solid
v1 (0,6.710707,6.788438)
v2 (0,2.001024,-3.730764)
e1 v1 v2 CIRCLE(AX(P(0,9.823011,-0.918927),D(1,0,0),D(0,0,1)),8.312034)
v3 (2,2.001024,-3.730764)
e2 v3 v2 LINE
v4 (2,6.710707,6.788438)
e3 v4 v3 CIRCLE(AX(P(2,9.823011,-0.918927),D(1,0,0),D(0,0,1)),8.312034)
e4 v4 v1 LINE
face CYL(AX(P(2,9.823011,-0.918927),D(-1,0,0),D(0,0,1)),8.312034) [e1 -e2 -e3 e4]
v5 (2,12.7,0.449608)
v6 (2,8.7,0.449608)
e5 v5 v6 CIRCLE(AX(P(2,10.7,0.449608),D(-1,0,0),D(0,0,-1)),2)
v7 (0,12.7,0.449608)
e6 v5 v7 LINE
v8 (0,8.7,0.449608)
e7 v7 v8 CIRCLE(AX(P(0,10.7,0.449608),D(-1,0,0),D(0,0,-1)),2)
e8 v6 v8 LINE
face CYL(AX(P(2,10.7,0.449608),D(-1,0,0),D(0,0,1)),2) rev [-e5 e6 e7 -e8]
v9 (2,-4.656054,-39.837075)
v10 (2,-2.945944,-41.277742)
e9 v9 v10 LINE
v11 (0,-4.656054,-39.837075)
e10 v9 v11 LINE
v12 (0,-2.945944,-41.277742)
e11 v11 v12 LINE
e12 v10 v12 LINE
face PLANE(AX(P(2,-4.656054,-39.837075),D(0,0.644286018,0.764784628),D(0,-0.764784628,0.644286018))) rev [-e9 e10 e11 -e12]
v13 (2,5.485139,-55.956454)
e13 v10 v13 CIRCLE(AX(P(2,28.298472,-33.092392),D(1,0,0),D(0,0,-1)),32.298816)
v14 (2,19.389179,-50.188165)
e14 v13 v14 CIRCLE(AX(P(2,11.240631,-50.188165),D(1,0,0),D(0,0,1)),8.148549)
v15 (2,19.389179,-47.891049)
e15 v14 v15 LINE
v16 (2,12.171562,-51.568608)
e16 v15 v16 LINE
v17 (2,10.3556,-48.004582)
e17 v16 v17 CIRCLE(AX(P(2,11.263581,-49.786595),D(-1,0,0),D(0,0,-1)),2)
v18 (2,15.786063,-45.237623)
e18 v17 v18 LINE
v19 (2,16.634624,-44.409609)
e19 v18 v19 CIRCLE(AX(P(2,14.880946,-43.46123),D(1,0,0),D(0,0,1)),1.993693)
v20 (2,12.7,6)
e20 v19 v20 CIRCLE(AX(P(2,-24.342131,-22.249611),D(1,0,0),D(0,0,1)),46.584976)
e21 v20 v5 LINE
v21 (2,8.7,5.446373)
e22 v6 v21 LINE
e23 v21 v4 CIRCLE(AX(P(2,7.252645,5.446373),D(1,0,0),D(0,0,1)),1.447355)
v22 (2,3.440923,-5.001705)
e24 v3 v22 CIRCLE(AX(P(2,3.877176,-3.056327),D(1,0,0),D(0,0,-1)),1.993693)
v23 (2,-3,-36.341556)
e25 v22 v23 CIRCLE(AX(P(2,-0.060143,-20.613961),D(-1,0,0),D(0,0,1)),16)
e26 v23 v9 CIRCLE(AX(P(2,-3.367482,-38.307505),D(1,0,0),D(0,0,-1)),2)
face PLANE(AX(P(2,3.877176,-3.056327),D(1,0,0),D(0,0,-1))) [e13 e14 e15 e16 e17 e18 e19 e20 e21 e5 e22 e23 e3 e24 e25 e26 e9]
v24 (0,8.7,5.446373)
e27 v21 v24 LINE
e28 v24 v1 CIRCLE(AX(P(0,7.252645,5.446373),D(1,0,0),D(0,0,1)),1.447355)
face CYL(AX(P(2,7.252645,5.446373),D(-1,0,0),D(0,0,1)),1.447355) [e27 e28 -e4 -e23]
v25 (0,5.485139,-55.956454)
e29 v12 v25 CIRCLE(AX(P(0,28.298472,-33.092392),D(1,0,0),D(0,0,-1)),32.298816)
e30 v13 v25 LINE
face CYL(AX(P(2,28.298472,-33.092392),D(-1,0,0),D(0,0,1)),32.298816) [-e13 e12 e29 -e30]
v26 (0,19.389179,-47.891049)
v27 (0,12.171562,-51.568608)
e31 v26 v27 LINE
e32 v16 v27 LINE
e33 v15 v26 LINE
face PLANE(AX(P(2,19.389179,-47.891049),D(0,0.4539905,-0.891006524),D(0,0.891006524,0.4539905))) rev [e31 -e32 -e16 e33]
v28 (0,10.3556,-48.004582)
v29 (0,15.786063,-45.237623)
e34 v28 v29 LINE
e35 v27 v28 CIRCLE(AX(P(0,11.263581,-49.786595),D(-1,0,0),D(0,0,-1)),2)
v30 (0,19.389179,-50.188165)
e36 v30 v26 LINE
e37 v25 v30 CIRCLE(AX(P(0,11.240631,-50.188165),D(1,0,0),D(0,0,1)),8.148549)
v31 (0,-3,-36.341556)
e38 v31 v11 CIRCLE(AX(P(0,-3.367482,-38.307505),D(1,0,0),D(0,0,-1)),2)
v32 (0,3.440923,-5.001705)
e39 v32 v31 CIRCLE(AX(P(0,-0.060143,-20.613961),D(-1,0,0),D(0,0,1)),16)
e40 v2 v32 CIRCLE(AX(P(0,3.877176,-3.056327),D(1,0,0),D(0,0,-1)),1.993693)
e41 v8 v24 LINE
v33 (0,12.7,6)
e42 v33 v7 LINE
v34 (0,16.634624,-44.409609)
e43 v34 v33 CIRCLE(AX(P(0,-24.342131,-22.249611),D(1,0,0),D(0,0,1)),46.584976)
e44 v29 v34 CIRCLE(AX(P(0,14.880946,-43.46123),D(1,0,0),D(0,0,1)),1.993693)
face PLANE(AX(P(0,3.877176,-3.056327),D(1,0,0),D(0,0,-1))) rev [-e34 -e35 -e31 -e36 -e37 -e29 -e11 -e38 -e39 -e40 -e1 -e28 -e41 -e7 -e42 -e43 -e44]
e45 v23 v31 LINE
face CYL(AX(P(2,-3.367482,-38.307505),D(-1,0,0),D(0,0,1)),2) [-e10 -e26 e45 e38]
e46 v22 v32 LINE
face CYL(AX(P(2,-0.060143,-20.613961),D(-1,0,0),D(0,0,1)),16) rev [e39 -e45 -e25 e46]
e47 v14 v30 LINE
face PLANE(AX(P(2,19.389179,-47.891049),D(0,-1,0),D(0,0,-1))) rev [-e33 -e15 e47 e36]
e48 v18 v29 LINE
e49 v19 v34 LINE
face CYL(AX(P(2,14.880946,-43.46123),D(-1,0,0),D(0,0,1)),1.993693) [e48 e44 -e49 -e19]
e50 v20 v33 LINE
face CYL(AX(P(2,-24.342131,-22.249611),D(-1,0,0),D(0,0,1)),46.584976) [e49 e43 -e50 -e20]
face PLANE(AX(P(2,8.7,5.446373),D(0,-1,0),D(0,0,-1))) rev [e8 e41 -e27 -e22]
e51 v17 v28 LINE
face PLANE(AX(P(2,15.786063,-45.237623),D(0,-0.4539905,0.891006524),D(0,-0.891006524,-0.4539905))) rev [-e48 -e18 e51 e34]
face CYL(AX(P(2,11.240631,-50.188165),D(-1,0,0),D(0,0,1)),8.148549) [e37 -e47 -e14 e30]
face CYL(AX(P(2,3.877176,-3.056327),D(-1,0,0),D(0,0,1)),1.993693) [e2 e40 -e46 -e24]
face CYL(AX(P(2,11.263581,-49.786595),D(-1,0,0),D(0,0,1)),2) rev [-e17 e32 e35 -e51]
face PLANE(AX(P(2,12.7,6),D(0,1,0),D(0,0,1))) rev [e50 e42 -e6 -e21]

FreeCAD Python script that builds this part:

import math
import FreeCAD as App
import Part
import Sketcher
Q = App.Units.Quantity

doc = App.newDocument("Part")
body = doc.addObject("PartDesign::Body", "Body")

sketch1 = body.newObject("Sketcher::SketchObject", "Sketch")
sketch1.AttachmentSupport = (doc.getObject("YZ_Plane"), [""])
sketch1.MapMode = "FlatFace"
sketch1.addGeometry([
    Part.LineSegment(App.Vector(19.4, -47.9, 0), App.Vector(12.2, -51.6, 0)),
    Part.ArcOfCircle(Part.Circle(App.Vector(11.3, -49.8, 0), App.Vector(0, 0, 1), 2), math.radians(117), math.radians(297)),
    Part.LineSegment(App.Vector(10.4, -48, 0), App.Vector(15.8, -45.2, 0)),
    Part.ArcOfCircle(Part.Circle(App.Vector(14.9, -43.5, 0), App.Vector(0, 0, 1), 2), math.radians(-63), math.radians(-28)),
    Part.ArcOfCircle(Part.Circle(App.Vector(-24.3, -22.2, 0), App.Vector(0, 0, 1), 46.6), math.radians(-28), math.radians(37)),
    Part.LineSegment(App.Vector(12.7, 6, 0), App.Vector(12.7, 0.4, 0)),
    Part.ArcOfCircle(Part.Circle(App.Vector(10.7, 0.4, 0), App.Vector(0, 0, 1), 2), math.radians(180), math.radians(360)),
    Part.LineSegment(App.Vector(8.7, 0.4, 0), App.Vector(8.7, 5.4, 0)),
    Part.ArcOfCircle(Part.Circle(App.Vector(7.3, 5.4, 0), App.Vector(0, 0, 1), 1.4), math.radians(0), math.radians(112)),
    Part.ArcOfCircle(Part.Circle(App.Vector(9.8, -0.9, 0), App.Vector(0, 0, 1), 8.3), math.radians(112), math.radians(200)),
    Part.ArcOfCircle(Part.Circle(App.Vector(3.9, -3.1, 0), App.Vector(0, 0, 1), 2), math.radians(-160), math.radians(-103)),
    Part.ArcOfCircle(Part.Circle(App.Vector(-0.1, -20.6, 0), App.Vector(0, 0, 1), 16), math.radians(-101), math.radians(77)),
    Part.ArcOfCircle(Part.Circle(App.Vector(-3.4, -38.3, 0), App.Vector(0, 0, 1), 2), math.radians(79), math.radians(230)),
    Part.LineSegment(App.Vector(-4.7, -39.8, 0), App.Vector(-2.9, -41.3, 0)),
    Part.ArcOfCircle(Part.Circle(App.Vector(28.3, -33.1, 0), App.Vector(0, 0, 1), 32.3), math.radians(-165), math.radians(-135)),
    Part.ArcOfCircle(Part.Circle(App.Vector(11.2, -50.2, 0), App.Vector(0, 0, 1), 8.1), math.radians(-135), math.radians(0)),
    Part.LineSegment(App.Vector(19.4, -50.2, 0), App.Vector(19.4, -47.9, 0)),
], False)
sketch1.addConstraint([
    Sketcher.Constraint("Tangent", 0, 2, 1, 2),
    Sketcher.Constraint("Tangent", 1, 1, 2, 1),
    Sketcher.Constraint("Tangent", 2, 2, 3, 1),
    Sketcher.Constraint("Tangent", 3, 2, 4, 1),
    Sketcher.Constraint("Coincident", 4, 2, 5, 1),
    Sketcher.Constraint("Tangent", 5, 2, 6, 2),
    Sketcher.Constraint("Tangent", 6, 1, 7, 1),
    Sketcher.Constraint("Tangent", 7, 2, 8, 1),
    Sketcher.Constraint("Tangent", 8, 2, 9, 1),
    Sketcher.Constraint("Tangent", 9, 2, 10, 1),
    Sketcher.Constraint("Tangent", 10, 2, 11, 2),
    Sketcher.Constraint("Tangent", 11, 1, 12, 1),
    Sketcher.Constraint("Tangent", 12, 2, 13, 1),
    Sketcher.Constraint("Coincident", 13, 2, 14, 1),
    Sketcher.Constraint("Tangent", 14, 2, 15, 1),
    Sketcher.Constraint("Tangent", 15, 2, 16, 1),
    Sketcher.Constraint("Coincident", 16, 2, 0, 1),
    Sketcher.Constraint("Vertical", 5),
    Sketcher.Constraint("Vertical", 7),
    Sketcher.Constraint("Vertical", 16),
    Sketcher.Constraint("Equal", 1, 6),
    Sketcher.Constraint("Equal", 3, 10),
    Sketcher.Constraint("Equal", 6, 12),
    Sketcher.Constraint("Parallel", 0, 2),
    Sketcher.Constraint("Radius", 1, 2.0),
    Sketcher.Constraint("Radius", 11, 16.0),
    Sketcher.Constraint("Angle", 0, Q("-153 deg")),
    Sketcher.Constraint("DistanceY", -1, 1, 4, 2, 6.0),
    Sketcher.Constraint("DistanceX", 11, 1, -1, 1, 3.0),
    Sketcher.Constraint("DistanceX", -1, 1, 6, 3, 10.7),
    Sketcher.Constraint("Radius", 15, 8.148549),
    Sketcher.Constraint("Radius", 3, 1.993693),
    Sketcher.Constraint("Radius", 4, 46.584976),
    Sketcher.Constraint("Radius", 8, 1.447355),
    Sketcher.Constraint("Radius", 9, 8.312034),
    Sketcher.Constraint("Radius", 14, 32.298816),
    Sketcher.Constraint("DistanceY", 5, 2, 5, 1, 5.550392),
    Sketcher.Constraint("DistanceX", -1, 1, 1, 1, 10.3556),
    Sketcher.Constraint("DistanceX", 8, 3, 3, 3, 7.6283),
    Sketcher.Constraint("DistanceY", 9, 3, 8, 3, 6.3653),
    Sketcher.Constraint("DistanceY", 10, 3, 9, 3, 2.1374),
    Sketcher.Constraint("DistanceX", 9, 2, 10, 2, 1.439899),
    Sketcher.Constraint("Distance", 0, 8.100521),
    Sketcher.Constraint("DistanceY", 7, 1, 7, 2, 4.996765),
    Sketcher.Constraint("DistanceY", 16, 1, 16, 2, 2.297116),
    Sketcher.Constraint("DistanceY", 3, 3, -1, 1, 43.46123),
    Sketcher.Constraint("DistanceX", -1, 1, 14, 2, 5.485139),
    Sketcher.Constraint("DistanceY", 12, 2, 12, 3, 1.529569),
])
pad1 = body.newObject("PartDesign::Pad", "Pad")
pad1.Profile = sketch1
pad1.Length = 2

doc.recompute()
